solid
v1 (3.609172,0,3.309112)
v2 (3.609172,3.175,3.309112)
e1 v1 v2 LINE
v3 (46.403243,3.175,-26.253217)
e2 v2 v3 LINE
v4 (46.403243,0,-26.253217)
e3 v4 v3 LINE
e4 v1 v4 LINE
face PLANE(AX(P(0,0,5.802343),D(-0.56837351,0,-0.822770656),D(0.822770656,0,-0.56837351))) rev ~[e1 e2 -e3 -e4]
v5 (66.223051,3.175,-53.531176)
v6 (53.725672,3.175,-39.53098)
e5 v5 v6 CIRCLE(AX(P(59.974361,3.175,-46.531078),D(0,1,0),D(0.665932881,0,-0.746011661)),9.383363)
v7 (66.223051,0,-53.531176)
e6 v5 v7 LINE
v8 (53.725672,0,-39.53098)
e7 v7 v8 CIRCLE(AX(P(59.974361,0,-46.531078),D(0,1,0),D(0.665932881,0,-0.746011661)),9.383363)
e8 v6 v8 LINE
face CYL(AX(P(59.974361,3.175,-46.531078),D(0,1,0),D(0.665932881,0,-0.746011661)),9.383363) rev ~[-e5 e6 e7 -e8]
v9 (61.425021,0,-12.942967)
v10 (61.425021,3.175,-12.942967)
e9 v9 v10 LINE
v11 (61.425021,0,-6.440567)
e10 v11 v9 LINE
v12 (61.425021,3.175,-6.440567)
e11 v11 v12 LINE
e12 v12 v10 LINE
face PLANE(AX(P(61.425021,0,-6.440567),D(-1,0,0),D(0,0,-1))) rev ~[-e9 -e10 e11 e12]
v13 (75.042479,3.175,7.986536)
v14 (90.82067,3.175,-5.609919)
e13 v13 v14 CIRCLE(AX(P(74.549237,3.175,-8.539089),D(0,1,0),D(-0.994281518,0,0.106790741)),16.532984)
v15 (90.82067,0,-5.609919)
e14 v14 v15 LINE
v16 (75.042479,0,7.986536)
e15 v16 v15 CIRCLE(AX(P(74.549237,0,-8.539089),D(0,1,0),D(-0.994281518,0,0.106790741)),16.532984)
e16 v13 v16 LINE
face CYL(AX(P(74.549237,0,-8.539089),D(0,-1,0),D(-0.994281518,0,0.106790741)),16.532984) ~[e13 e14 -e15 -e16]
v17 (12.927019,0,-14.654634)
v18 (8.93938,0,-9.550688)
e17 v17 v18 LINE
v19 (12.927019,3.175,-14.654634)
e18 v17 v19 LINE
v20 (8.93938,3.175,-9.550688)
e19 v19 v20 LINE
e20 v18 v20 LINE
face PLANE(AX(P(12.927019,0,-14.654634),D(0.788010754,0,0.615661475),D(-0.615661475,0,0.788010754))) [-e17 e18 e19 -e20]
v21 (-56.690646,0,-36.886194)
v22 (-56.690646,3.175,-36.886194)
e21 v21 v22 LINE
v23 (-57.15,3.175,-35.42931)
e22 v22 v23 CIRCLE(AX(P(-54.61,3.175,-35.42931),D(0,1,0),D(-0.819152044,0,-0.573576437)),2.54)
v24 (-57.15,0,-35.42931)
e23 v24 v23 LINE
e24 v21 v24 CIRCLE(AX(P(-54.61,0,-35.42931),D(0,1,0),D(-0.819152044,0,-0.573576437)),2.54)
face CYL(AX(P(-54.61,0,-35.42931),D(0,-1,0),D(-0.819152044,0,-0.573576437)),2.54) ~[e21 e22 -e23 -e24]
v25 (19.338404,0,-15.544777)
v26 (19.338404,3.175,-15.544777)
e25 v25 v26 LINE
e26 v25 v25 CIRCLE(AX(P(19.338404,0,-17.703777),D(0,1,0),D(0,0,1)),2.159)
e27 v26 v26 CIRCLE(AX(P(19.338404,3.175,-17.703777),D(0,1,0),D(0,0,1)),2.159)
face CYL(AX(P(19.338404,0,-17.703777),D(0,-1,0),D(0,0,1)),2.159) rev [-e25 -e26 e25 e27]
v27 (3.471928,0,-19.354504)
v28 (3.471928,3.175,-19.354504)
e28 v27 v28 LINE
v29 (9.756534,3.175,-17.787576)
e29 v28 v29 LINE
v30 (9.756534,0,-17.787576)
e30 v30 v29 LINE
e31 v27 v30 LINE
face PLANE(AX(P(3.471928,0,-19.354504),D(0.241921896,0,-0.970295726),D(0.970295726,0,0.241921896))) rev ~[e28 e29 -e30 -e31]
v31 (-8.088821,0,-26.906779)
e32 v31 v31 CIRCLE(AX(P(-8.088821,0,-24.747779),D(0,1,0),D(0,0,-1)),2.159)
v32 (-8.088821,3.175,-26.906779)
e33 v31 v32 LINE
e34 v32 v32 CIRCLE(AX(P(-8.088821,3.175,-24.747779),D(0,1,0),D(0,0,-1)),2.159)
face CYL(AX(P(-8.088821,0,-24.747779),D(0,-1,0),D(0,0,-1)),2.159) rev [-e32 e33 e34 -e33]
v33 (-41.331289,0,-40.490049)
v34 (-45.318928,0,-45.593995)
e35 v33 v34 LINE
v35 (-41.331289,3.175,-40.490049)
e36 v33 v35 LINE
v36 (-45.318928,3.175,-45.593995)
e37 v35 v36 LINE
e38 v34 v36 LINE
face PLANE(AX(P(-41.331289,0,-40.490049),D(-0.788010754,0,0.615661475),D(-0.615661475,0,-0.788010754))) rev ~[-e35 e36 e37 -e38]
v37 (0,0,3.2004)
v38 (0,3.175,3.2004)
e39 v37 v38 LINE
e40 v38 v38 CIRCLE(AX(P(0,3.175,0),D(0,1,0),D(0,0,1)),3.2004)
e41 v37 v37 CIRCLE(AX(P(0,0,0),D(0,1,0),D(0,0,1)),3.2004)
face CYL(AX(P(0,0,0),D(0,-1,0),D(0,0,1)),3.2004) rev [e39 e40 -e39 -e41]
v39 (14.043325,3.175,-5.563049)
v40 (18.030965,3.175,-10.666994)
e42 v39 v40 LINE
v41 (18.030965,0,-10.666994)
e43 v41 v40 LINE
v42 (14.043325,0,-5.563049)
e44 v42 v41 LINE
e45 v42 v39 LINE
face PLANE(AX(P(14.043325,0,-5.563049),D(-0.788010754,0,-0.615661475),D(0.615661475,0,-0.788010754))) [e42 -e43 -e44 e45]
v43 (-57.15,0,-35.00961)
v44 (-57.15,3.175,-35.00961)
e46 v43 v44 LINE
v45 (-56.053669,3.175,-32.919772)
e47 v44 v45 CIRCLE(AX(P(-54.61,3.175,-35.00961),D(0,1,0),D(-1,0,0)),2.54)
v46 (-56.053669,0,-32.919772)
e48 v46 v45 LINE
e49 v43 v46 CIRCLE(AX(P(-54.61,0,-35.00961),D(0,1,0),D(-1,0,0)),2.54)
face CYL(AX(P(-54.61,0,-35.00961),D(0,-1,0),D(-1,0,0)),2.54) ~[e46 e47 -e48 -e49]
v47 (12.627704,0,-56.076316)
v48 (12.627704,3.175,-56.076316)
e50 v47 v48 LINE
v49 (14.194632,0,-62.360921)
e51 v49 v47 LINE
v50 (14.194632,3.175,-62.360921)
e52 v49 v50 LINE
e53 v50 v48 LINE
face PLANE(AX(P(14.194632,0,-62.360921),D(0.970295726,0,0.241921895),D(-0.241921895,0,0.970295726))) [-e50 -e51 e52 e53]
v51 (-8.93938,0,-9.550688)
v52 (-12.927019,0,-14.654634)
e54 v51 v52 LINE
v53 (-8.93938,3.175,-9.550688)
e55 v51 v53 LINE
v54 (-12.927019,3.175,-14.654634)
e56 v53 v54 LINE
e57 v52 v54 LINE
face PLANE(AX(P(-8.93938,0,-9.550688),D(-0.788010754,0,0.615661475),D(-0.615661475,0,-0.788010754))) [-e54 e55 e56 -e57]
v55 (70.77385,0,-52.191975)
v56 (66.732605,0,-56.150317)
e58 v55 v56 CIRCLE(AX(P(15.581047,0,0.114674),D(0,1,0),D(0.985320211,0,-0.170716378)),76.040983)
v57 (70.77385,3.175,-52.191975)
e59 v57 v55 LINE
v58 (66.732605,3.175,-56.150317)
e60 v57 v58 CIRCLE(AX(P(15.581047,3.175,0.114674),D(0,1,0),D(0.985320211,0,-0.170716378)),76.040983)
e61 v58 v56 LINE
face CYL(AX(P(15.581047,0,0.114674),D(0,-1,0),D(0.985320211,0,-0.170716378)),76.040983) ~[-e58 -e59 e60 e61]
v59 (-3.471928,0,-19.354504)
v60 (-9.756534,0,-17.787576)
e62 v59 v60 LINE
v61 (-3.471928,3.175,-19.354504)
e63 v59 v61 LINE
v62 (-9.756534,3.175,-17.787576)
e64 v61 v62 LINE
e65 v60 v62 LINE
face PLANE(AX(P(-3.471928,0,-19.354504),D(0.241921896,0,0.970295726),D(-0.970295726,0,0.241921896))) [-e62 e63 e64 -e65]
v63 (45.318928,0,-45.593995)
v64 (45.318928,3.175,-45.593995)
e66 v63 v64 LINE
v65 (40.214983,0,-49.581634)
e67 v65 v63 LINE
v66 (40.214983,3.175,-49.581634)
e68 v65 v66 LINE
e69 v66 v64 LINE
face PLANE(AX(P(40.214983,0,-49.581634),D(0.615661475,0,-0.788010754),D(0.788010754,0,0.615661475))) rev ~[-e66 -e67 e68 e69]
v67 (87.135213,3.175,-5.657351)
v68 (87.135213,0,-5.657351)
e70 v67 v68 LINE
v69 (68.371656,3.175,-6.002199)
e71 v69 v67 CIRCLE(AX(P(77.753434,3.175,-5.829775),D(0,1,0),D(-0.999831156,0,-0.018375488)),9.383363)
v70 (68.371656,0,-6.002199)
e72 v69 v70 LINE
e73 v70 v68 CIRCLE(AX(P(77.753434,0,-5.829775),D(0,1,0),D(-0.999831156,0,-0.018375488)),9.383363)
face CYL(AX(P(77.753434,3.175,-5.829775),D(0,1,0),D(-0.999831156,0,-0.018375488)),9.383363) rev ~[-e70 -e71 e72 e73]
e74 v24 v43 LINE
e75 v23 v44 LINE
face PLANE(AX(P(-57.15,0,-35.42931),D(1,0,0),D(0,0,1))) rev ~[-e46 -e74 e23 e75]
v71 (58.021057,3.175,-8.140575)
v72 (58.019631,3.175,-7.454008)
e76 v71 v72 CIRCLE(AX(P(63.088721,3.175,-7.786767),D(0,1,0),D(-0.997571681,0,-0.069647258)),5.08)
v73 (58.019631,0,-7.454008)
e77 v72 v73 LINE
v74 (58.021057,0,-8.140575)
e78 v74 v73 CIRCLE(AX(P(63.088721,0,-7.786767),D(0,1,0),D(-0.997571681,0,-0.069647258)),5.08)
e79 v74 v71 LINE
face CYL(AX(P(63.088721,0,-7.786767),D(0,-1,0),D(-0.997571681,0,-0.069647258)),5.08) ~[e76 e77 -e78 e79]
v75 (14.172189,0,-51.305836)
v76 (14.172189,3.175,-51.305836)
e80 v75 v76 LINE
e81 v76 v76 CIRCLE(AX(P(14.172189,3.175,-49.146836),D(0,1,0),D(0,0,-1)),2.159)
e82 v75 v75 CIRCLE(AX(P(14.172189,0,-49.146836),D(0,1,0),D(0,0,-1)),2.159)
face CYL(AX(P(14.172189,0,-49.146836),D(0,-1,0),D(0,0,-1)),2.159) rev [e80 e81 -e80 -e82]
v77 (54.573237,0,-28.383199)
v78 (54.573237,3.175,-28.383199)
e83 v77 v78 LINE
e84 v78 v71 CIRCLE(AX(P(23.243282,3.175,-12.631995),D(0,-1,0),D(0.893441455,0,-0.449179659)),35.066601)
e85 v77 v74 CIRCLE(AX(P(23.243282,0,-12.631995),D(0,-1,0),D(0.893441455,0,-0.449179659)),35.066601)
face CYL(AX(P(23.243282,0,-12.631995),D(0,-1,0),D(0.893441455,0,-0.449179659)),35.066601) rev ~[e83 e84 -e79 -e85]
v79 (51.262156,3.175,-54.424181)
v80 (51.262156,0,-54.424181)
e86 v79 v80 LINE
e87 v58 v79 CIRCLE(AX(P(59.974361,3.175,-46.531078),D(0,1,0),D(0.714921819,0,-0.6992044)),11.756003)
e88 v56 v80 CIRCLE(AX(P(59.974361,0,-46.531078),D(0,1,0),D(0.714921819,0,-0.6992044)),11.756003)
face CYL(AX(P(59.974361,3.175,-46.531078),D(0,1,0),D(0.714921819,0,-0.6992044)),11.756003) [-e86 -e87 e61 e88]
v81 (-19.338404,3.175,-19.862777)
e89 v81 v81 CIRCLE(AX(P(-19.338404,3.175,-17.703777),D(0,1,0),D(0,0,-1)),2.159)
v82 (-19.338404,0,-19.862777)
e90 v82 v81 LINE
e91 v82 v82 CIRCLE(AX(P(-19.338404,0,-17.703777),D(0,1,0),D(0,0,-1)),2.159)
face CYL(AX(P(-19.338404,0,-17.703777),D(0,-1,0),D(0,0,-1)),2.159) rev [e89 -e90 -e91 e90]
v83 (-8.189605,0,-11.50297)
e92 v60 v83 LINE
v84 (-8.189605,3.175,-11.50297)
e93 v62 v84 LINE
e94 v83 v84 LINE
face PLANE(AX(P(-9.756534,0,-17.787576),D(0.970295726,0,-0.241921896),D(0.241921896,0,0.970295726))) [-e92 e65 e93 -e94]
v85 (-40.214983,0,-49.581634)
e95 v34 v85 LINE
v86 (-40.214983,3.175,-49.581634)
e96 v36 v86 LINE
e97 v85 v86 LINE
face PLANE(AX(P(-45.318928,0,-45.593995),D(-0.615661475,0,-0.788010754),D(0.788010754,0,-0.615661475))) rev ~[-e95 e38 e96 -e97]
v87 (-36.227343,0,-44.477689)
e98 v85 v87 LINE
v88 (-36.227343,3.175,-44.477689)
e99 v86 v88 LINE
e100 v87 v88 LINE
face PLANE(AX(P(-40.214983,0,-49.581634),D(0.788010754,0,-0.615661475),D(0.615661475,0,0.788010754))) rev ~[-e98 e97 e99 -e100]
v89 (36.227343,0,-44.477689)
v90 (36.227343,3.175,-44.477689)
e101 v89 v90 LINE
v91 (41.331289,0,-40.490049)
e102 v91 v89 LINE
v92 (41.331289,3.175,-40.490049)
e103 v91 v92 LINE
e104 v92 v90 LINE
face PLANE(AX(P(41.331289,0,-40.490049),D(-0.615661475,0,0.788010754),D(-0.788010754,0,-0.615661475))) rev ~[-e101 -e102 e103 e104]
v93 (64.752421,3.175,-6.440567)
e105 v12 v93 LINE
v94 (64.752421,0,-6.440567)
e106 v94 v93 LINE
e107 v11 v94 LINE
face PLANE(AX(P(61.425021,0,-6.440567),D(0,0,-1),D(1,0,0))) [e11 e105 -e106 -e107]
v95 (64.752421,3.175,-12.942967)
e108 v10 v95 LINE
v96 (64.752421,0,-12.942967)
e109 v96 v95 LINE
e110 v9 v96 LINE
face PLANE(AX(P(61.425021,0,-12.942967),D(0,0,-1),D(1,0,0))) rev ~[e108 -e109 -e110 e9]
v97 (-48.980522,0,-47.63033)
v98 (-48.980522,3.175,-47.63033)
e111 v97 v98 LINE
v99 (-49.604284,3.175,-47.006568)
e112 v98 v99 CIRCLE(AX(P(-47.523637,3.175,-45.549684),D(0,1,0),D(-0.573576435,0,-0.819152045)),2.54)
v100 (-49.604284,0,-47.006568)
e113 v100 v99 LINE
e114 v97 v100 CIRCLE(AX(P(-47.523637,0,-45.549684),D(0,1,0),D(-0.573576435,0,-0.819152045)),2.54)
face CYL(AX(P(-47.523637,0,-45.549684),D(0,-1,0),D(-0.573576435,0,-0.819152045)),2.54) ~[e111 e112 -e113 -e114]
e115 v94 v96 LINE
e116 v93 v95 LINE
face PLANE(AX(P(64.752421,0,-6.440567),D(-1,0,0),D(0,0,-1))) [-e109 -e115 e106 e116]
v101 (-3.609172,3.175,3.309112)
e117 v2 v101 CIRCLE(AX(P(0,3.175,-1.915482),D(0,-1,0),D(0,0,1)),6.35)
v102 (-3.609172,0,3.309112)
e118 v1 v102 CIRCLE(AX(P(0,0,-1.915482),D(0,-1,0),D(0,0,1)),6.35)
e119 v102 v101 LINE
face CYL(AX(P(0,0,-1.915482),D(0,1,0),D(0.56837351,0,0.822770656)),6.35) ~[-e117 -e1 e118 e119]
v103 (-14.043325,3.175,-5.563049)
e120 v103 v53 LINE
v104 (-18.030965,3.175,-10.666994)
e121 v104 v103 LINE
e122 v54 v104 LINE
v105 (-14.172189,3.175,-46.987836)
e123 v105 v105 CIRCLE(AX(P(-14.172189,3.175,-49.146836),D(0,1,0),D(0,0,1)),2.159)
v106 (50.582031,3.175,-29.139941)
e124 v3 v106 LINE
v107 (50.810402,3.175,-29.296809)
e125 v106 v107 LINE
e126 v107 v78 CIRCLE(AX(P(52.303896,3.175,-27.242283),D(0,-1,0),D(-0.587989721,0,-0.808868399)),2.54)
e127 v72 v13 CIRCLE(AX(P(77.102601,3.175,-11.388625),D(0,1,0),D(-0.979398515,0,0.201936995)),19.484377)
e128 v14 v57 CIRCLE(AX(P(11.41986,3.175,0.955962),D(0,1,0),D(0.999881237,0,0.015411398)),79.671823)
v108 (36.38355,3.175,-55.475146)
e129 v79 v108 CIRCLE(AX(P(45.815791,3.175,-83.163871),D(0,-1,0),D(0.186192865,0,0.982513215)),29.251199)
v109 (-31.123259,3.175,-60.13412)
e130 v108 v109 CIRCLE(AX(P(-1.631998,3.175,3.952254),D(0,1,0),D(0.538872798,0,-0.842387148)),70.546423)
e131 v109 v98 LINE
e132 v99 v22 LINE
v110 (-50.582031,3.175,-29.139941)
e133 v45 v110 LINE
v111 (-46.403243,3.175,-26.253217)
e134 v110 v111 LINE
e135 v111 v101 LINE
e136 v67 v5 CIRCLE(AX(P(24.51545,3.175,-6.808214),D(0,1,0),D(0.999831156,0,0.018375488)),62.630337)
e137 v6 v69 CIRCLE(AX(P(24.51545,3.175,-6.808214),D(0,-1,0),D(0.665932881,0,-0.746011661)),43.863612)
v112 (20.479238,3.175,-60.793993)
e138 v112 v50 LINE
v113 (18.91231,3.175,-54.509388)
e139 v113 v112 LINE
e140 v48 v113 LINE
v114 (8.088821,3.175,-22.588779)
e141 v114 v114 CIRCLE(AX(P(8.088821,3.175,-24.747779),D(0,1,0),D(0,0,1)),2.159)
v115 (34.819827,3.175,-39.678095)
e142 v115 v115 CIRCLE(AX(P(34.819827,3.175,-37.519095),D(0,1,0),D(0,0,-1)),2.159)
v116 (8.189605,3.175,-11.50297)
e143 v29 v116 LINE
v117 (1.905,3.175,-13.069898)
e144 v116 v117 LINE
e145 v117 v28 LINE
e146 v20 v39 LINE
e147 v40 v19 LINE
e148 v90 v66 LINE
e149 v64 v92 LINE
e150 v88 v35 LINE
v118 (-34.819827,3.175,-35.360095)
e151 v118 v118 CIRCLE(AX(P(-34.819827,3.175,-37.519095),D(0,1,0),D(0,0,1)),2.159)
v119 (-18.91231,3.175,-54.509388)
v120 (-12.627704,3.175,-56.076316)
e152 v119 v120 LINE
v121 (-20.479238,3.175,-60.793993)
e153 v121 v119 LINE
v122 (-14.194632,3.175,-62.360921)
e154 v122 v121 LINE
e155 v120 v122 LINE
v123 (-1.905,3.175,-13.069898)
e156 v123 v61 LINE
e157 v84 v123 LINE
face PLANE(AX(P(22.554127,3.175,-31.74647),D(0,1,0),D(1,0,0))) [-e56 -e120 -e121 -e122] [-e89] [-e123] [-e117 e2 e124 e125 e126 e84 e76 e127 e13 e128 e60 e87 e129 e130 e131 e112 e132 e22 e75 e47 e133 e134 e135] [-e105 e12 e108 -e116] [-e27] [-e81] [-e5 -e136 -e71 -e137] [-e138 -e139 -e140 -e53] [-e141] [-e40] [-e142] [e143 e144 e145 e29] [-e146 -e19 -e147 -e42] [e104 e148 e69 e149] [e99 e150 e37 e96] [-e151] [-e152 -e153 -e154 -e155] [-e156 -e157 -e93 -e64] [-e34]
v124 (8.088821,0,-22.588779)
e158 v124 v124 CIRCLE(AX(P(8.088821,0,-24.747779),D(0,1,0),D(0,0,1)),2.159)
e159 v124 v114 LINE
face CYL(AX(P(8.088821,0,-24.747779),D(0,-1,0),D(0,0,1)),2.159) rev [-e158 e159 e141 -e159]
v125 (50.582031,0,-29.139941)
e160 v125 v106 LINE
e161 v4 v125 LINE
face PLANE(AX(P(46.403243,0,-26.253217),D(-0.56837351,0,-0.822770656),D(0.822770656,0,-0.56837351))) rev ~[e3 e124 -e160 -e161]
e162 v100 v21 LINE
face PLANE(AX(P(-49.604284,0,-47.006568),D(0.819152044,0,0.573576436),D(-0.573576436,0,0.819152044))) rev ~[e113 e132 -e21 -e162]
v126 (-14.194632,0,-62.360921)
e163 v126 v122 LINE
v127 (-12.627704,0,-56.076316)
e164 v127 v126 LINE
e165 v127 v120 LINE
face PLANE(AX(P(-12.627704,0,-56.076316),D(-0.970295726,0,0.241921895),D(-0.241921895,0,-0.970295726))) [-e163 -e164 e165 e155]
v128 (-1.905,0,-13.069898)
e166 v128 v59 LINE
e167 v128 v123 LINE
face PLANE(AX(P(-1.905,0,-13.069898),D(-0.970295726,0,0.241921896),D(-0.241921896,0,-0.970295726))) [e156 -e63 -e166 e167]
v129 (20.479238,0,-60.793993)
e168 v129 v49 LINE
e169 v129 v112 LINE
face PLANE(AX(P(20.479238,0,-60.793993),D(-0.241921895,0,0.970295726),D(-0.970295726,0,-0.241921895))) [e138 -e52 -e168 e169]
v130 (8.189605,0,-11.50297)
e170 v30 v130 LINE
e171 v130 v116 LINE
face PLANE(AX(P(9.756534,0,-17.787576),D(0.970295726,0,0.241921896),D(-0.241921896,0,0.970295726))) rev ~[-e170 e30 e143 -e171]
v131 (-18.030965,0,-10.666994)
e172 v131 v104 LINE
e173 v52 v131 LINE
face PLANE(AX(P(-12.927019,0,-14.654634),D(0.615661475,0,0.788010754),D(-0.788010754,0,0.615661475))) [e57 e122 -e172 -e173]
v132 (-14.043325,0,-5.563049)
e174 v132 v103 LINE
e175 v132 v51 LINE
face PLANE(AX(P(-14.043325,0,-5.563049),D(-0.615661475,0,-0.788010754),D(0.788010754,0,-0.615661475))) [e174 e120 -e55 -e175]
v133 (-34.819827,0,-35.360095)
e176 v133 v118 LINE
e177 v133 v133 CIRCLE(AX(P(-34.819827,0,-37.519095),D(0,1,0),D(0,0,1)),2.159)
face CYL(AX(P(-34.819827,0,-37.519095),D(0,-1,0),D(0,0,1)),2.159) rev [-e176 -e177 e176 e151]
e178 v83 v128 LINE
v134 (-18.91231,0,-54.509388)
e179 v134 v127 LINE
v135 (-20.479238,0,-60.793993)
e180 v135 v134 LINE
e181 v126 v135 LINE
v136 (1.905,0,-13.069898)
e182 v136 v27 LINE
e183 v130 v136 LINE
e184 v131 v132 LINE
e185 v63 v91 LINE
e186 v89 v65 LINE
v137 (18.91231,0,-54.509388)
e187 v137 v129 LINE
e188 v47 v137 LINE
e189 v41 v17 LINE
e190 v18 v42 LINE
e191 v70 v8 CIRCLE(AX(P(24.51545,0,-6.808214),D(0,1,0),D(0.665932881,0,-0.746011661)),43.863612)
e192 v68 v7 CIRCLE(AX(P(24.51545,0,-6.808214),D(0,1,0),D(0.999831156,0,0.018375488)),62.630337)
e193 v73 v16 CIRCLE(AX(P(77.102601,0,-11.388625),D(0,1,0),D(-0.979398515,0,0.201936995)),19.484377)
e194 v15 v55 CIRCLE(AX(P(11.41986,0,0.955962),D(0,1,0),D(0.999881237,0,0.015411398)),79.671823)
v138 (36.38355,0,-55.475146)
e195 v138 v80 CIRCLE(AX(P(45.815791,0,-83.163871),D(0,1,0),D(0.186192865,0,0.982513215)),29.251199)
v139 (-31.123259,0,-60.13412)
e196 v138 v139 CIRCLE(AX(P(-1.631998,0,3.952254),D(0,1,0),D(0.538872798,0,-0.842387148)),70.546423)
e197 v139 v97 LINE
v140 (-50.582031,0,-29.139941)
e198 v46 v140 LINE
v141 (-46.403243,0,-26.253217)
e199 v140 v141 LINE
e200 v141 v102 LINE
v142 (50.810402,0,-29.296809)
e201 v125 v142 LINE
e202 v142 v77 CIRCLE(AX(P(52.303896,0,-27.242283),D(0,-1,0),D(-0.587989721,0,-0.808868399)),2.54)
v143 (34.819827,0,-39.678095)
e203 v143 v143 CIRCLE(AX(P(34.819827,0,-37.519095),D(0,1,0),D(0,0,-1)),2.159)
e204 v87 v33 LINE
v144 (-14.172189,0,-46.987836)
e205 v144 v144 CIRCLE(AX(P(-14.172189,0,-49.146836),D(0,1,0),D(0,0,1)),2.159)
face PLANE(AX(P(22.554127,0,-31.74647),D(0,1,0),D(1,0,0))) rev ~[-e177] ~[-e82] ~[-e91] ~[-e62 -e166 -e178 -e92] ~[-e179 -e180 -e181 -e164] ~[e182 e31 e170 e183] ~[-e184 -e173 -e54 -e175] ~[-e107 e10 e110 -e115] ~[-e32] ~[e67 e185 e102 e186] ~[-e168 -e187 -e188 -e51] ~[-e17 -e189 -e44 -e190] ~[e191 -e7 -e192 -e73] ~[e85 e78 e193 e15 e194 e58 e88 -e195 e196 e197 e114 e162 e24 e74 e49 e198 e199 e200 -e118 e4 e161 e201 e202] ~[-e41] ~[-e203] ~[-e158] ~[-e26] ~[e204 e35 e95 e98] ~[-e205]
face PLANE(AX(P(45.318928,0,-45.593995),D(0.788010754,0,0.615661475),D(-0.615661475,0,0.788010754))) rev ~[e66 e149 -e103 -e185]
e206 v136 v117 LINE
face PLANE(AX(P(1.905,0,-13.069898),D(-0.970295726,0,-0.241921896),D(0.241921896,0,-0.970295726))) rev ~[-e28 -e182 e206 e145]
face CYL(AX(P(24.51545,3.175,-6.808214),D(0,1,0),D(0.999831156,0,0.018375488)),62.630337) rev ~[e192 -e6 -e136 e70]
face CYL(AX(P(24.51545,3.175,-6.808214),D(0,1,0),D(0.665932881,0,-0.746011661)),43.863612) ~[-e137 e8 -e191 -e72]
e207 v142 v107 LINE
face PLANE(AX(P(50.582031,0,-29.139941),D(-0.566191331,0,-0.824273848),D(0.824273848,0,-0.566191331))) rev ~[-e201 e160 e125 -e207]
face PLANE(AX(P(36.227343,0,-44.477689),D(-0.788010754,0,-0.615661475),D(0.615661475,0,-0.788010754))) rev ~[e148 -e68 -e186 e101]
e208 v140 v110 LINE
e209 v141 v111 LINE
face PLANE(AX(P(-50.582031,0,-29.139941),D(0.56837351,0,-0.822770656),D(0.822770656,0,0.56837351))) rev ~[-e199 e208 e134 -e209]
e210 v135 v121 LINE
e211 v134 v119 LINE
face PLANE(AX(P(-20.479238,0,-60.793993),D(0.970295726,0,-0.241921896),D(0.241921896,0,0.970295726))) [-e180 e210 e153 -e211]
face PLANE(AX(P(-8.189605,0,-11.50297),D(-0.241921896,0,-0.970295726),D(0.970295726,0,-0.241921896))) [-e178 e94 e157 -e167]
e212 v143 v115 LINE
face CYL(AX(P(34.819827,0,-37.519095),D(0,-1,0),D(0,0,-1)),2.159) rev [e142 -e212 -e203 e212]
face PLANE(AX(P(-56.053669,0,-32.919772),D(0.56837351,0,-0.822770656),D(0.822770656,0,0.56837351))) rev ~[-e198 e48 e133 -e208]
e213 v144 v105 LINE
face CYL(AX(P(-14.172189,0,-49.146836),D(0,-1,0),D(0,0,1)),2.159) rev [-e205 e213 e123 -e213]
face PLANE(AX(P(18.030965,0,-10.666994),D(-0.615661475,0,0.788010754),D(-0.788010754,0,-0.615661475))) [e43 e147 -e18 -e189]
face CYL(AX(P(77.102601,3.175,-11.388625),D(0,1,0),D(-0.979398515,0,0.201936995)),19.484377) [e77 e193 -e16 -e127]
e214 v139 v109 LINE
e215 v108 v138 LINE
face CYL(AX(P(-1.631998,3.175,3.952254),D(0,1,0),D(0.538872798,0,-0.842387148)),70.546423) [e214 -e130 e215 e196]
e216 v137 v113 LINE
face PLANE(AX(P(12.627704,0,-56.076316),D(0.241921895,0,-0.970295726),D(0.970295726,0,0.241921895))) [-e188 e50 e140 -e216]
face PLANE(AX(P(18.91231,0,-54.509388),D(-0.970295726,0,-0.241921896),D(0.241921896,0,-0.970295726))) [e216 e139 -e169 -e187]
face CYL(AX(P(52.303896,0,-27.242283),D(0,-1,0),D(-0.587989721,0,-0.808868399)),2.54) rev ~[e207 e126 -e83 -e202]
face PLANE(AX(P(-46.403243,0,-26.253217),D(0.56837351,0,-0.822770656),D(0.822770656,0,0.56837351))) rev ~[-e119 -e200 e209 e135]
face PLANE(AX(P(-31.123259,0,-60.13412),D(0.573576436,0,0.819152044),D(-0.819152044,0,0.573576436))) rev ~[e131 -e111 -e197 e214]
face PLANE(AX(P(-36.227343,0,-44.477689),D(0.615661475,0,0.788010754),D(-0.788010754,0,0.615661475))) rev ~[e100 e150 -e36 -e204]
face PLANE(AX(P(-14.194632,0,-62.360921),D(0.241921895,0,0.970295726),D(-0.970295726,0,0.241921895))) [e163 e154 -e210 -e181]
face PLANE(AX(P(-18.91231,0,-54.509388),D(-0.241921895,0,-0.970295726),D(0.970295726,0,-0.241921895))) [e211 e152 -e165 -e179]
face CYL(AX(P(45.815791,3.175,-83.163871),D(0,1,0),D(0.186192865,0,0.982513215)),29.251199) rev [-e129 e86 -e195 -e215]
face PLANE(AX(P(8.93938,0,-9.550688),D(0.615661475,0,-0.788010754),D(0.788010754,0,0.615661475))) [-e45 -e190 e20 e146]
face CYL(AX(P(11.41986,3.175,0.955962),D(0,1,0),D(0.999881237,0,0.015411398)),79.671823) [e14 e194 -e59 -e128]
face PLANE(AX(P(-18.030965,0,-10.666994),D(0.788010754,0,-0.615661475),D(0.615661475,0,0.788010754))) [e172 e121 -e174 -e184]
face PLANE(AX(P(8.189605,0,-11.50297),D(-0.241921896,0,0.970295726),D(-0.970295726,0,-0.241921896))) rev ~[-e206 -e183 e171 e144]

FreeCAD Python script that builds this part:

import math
import FreeCAD as App
import Part
import Sketcher
Q = App.Units.Quantity


def edges_at(feature, points):
    """Names of the edges that pass closest to the given points."""
    edges = feature.Shape.Edges
    near = lambda p: min(range(len(edges)), key=lambda i: edges[i].distToShape(Part.Vertex(*p))[0])
    return sorted({f"Edge{near(p) + 1}" for p in points})

doc = App.newDocument("Part")
body = doc.addObject("PartDesign::Body", "Body")

# Sketch on XZ plane
sketch1 = body.newObject("Sketcher::SketchObject", "Sketch")
sketch1.AttachmentSupport = (doc.getObject("XZ_Plane"), [""])
sketch1.MapMode = "FlatFace"
sketch1.addGeometry([
    Part.LineSegment(App.Vector(46.4, -26.25, 0), App.Vector(50.58, -29.14, 0)),  # 0
    Part.LineSegment(App.Vector(50.58, -29.14, 0), App.Vector(50.81, -29.3, 0)),  # 1
    Part.ArcOfCircle(Part.Circle(App.Vector(52.3, -27.24, 0), App.Vector(0, 0, 1), 2.54), math.radians(-126), math.radians(-27)),  # 2
    Part.ArcOfCircle(Part.Circle(App.Vector(23.24, -12.63, 0), App.Vector(0, 0, 1), 35.07), math.radians(-27), math.radians(7)),  # 3
    Part.ArcOfCircle(Part.Circle(App.Vector(63.09, -7.79, 0), App.Vector(0, 0, 1), 5.08), math.radians(168.49), math.radians(183.99)),  # 4
    Part.ArcOfCircle(Part.Circle(App.Vector(74.55, -8.54, 0), App.Vector(0, 0, 1), 16.53), math.radians(-15), math.radians(174)),  # 5
    Part.ArcOfCircle(Part.Circle(App.Vector(15.58, 0.11, 0), App.Vector(0, 0, 1), 76.04), math.radians(-127), math.radians(-10)),  # 6
    Part.ArcOfCircle(Part.Circle(App.Vector(-29.67, -58.05, 0), App.Vector(0, 0, 1), 2.54), math.radians(-125), math.radians(-105)),  # 7
    Part.LineSegment(App.Vector(-31.12, -60.13, 0), App.Vector(-48.98, -47.63, 0)),  # 8
    Part.ArcOfCircle(Part.Circle(App.Vector(-47.52, -45.55, 0), App.Vector(0, 0, 1), 2.54), math.radians(-145), math.radians(-125)),  # 9
    Part.LineSegment(App.Vector(-49.6, -47.01, 0), App.Vector(-56.69, -36.89, 0)),  # 10
    Part.ArcOfCircle(Part.Circle(App.Vector(-54.61, -35.43, 0), App.Vector(0, 0, 1), 2.54), math.radians(180), math.radians(215)),  # 11
    Part.LineSegment(App.Vector(-57.15, -35.43, 0), App.Vector(-57.15, -35.01, 0)),  # 12
    Part.ArcOfCircle(Part.Circle(App.Vector(-54.61, -35.01, 0), App.Vector(0, 0, 1), 2.54), math.radians(125), math.radians(180)),  # 13
    Part.LineSegment(App.Vector(-56.05, -32.92, 0), App.Vector(-50.58, -29.14, 0)),  # 14
    Part.LineSegment(App.Vector(-50.58, -29.14, 0), App.Vector(-46.4, -26.25, 0)),  # 15
    Part.LineSegment(App.Vector(-46.4, -26.25, 0), App.Vector(0, 5.8, 0)),  # 16
    Part.LineSegment(App.Vector(0, 5.8, 0), App.Vector(46.4, -26.25, 0)),  # 17
    Part.Circle(App.Vector(0, 0, 0), App.Vector(0, 0, 1), 3.2),  # 18
    Part.LineSegment(App.Vector(-18.03, -10.67, 0), App.Vector(-12.93, -14.65, 0)),  # 19
    Part.LineSegment(App.Vector(-12.93, -14.65, 0), App.Vector(-8.94, -9.55, 0)),  # 20
    Part.LineSegment(App.Vector(-8.94, -9.55, 0), App.Vector(-14.04, -5.56, 0)),  # 21
    Part.LineSegment(App.Vector(-14.04, -5.56, 0), App.Vector(-18.03, -10.67, 0)),  # 22
    Part.Circle(App.Vector(-19.34, -17.7, 0), App.Vector(0, 0, 1), 2.16),  # 23
    Part.LineSegment(App.Vector(-9.76, -17.79, 0), App.Vector(-3.47, -19.35, 0)),  # 24
    Part.LineSegment(App.Vector(-3.47, -19.35, 0), App.Vector(-1.91, -13.07, 0)),  # 25
    Part.LineSegment(App.Vector(-1.91, -13.07, 0), App.Vector(-8.19, -11.5, 0)),  # 26
    Part.LineSegment(App.Vector(-8.19, -11.5, 0), App.Vector(-9.76, -17.79, 0)),  # 27
    Part.LineSegment(App.Vector(3.47, -19.35, 0), App.Vector(9.76, -17.79, 0)),  # 28
    Part.LineSegment(App.Vector(9.76, -17.79, 0), App.Vector(8.19, -11.5, 0)),  # 29
    Part.LineSegment(App.Vector(8.19, -11.5, 0), App.Vector(1.91, -13.07, 0)),  # 30
    Part.LineSegment(App.Vector(1.91, -13.07, 0), App.Vector(3.47, -19.35, 0)),  # 31
    Part.Circle(App.Vector(-8.09, -24.75, 0), App.Vector(0, 0, 1), 2.16),  # 32
    Part.Circle(App.Vector(8.09, -24.75, 0), App.Vector(0, 0, 1), 2.16),  # 33
    Part.LineSegment(App.Vector(14.04, -5.56, 0), App.Vector(8.94, -9.55, 0)),  # 34
    Part.LineSegment(App.Vector(8.94, -9.55, 0), App.Vector(12.93, -14.65, 0)),  # 35
    Part.LineSegment(App.Vector(12.93, -14.65, 0), App.Vector(18.03, -10.67, 0)),  # 36
    Part.LineSegment(App.Vector(18.03, -10.67, 0), App.Vector(14.04, -5.56, 0)),  # 37
    Part.LineSegment(App.Vector(64.75, -6.44, 0), App.Vector(61.43, -6.44, 0)),  # 38
    Part.LineSegment(App.Vector(61.43, -6.44, 0), App.Vector(61.43, -12.94, 0)),  # 39
    Part.LineSegment(App.Vector(61.43, -12.94, 0), App.Vector(64.75, -12.94, 0)),  # 40
    Part.LineSegment(App.Vector(64.75, -12.94, 0), App.Vector(64.75, -6.44, 0)),  # 41
    Part.Circle(App.Vector(19.34, -17.7, 0), App.Vector(0, 0, 1), 2.16),  # 42
    Part.Circle(App.Vector(-34.82, -37.52, 0), App.Vector(0, 0, 1), 2.16),  # 43
    Part.LineSegment(App.Vector(-40.21, -49.58, 0), App.Vector(-36.23, -44.48, 0)),  # 44
    Part.LineSegment(App.Vector(-36.23, -44.48, 0), App.Vector(-41.33, -40.49, 0)),  # 45
    Part.LineSegment(App.Vector(-41.33, -40.49, 0), App.Vector(-45.32, -45.59, 0)),  # 46
    Part.LineSegment(App.Vector(-45.32, -45.59, 0), App.Vector(-40.21, -49.58, 0)),  # 47
    Part.Circle(App.Vector(-14.17, -49.15, 0), App.Vector(0, 0, 1), 2.16),  # 48
    Part.LineSegment(App.Vector(-20.48, -60.79, 0), App.Vector(-14.19, -62.36, 0)),  # 49
    Part.LineSegment(App.Vector(-14.19, -62.36, 0), App.Vector(-12.63, -56.08, 0)),  # 50
    Part.LineSegment(App.Vector(-12.63, -56.08, 0), App.Vector(-18.91, -54.51, 0)),  # 51
    Part.LineSegment(App.Vector(-18.91, -54.51, 0), App.Vector(-20.48, -60.79, 0)),  # 52
    Part.Circle(App.Vector(34.82, -37.52, 0), App.Vector(0, 0, 1), 2.16),  # 53
    Part.LineSegment(App.Vector(36.23, -44.48, 0), App.Vector(40.21, -49.58, 0)),  # 54
    Part.LineSegment(App.Vector(40.21, -49.58, 0), App.Vector(45.32, -45.59, 0)),  # 55
    Part.LineSegment(App.Vector(45.32, -45.59, 0), App.Vector(41.33, -40.49, 0)),  # 56
    Part.LineSegment(App.Vector(41.33, -40.49, 0), App.Vector(36.23, -44.48, 0)),  # 57
    Part.Circle(App.Vector(14.17, -49.15, 0), App.Vector(0, 0, 1), 2.16),  # 58
    Part.LineSegment(App.Vector(12.63, -56.08, 0), App.Vector(14.19, -62.36, 0)),  # 59
    Part.LineSegment(App.Vector(14.19, -62.36, 0), App.Vector(20.48, -60.79, 0)),  # 60
    Part.LineSegment(App.Vector(20.48, -60.79, 0), App.Vector(18.91, -54.51, 0)),  # 61
    Part.LineSegment(App.Vector(18.91, -54.51, 0), App.Vector(12.63, -56.08, 0)),  # 62
], False)
sketch1.addConstraint([
    Sketcher.Constraint("Coincident", 0, 2, 1, 1),
    Sketcher.Constraint("Coincident", 1, 2, 2, 1),
    Sketcher.Constraint("Tangent", 2, 2, 3, 1),
    Sketcher.Constraint("Coincident", 3, 2, 4, 2),
    Sketcher.Constraint("Coincident", 4, 1, 5, 2),
    Sketcher.Constraint("Coincident", 5, 1, 6, 2),
    Sketcher.Constraint("Coincident", 6, 1, 7, 2),
    Sketcher.Constraint("Tangent", 7, 1, 8, 1),
    Sketcher.Constraint("Tangent", 8, 2, 9, 2),
    Sketcher.Constraint("Tangent", 9, 1, 10, 1),
    Sketcher.Constraint("Tangent", 10, 2, 11, 2),
    Sketcher.Constraint("Tangent", 11, 1, 12, 1),
    Sketcher.Constraint("Tangent", 12, 2, 13, 2),
    Sketcher.Constraint("Tangent", 13, 1, 14, 1),
    Sketcher.Constraint("Coincident", 14, 2, 15, 1),
    Sketcher.Constraint("Coincident", 15, 2, 16, 1),
    Sketcher.Constraint("Coincident", 16, 2, 17, 1),
    Sketcher.Constraint("Coincident", 17, 2, 0, 1),
    Sketcher.Constraint("Coincident", 19, 2, 20, 1),
    Sketcher.Constraint("Coincident", 20, 2, 21, 1),
    Sketcher.Constraint("Coincident", 21, 2, 22, 1),
    Sketcher.Constraint("Coincident", 22, 2, 19, 1),
    Sketcher.Constraint("Coincident", 24, 2, 25, 1),
    Sketcher.Constraint("Coincident", 25, 2, 26, 1),
    Sketcher.Constraint("Coincident", 26, 2, 27, 1),
    Sketcher.Constraint("Coincident", 27, 2, 24, 1),
    Sketcher.Constraint("Coincident", 28, 2, 29, 1),
    Sketcher.Constraint("Coincident", 29, 2, 30, 1),
    Sketcher.Constraint("Coincident", 30, 2, 31, 1),
    Sketcher.Constraint("Coincident", 31, 2, 28, 1),
    Sketcher.Constraint("Coincident", 34, 2, 35, 1),
    Sketcher.Constraint("Coincident", 35, 2, 36, 1),
    Sketcher.Constraint("Coincident", 36, 2, 37, 1),
    Sketcher.Constraint("Coincident", 37, 2, 34, 1),
    Sketcher.Constraint("Coincident", 38, 2, 39, 1),
    Sketcher.Constraint("Coincident", 39, 2, 40, 1),
    Sketcher.Constraint("Coincident", 40, 2, 41, 1),
    Sketcher.Constraint("Coincident", 41, 2, 38, 1),
    Sketcher.Constraint("Coincident", 44, 2, 45, 1),
    Sketcher.Constraint("Coincident", 45, 2, 46, 1),
    Sketcher.Constraint("Coincident", 46, 2, 47, 1),
    Sketcher.Constraint("Coincident", 47, 2, 44, 1),
    Sketcher.Constraint("Coincident", 49, 2, 50, 1),
    Sketcher.Constraint("Coincident", 50, 2, 51, 1),
    Sketcher.Constraint("Coincident", 51, 2, 52, 1),
    Sketcher.Constraint("Coincident", 52, 2, 49, 1),
    Sketcher.Constraint("Coincident", 54, 2, 55, 1),
    Sketcher.Constraint("Coincident", 55, 2, 56, 1),
    Sketcher.Constraint("Coincident", 56, 2, 57, 1),
    Sketcher.Constraint("Coincident", 57, 2, 54, 1),
    Sketcher.Constraint("Coincident", 59, 2, 60, 1),
    Sketcher.Constraint("Coincident", 60, 2, 61, 1),
    Sketcher.Constraint("Coincident", 61, 2, 62, 1),
    Sketcher.Constraint("Coincident", 62, 2, 59, 1),
    Sketcher.Constraint("Vertical", 12),
    Sketcher.Constraint("Horizontal", 38),
    Sketcher.Constraint("Vertical", 39),
    Sketcher.Constraint("Horizontal", 40),
    Sketcher.Constraint("Vertical", 41),
    Sketcher.Constraint("Coincident", 18, 3, -1, 1),
    Sketcher.Constraint("Equal", 2, 7),
    Sketcher.Constraint("Equal", 7, 9),
    Sketcher.Constraint("Equal", 9, 11),
    Sketcher.Constraint("Equal", 11, 13),
    Sketcher.Constraint("Equal", 23, 32),
    Sketcher.Constraint("Equal", 32, 33),
    Sketcher.Constraint("Equal", 33, 42),
    Sketcher.Constraint("Equal", 42, 43),
    Sketcher.Constraint("Equal", 43, 48),
    Sketcher.Constraint("Equal", 48, 53),
    Sketcher.Constraint("Equal", 53, 58),
    Sketcher.Constraint("Symmetric", 32, 3, 33, 3, -2),
    Sketcher.Constraint("Symmetric", 23, 3, 42, 3, -2),
    Sketcher.Constraint("Symmetric", 43, 3, 53, 3, -2),
    Sketcher.Constraint("Symmetric", 48, 3, 58, 3, -2),
    Sketcher.Constraint("Symmetric", 0, 2, 14, 2, -2),
    Sketcher.Constraint("Symmetric", 15, 2, 17, 2, -2),
    Sketcher.Constraint("Symmetric", 27, 2, 28, 2, -2),
    Sketcher.Constraint("Symmetric", 26, 2, 29, 2, -2),
    Sketcher.Constraint("Symmetric", 25, 2, 30, 2, -2),
    Sketcher.Constraint("Symmetric", 24, 2, 31, 2, -2),
    Sketcher.Constraint("Symmetric", 20, 2, 34, 2, -2),
    Sketcher.Constraint("Symmetric", 19, 2, 35, 2, -2),
    Sketcher.Constraint("Symmetric", 22, 2, 36, 2, -2),
    Sketcher.Constraint("Symmetric", 21, 2, 37, 2, -2),
    Sketcher.Constraint("Symmetric", 47, 2, 54, 2, -2),
    Sketcher.Constraint("Symmetric", 46, 2, 55, 2, -2),
    Sketcher.Constraint("Symmetric", 45, 2, 56, 2, -2),
    Sketcher.Constraint("Symmetric", 44, 2, 57, 2, -2),
    Sketcher.Constraint("Symmetric", 49, 2, 59, 2, -2),
    Sketcher.Constraint("Symmetric", 52, 2, 60, 2, -2),
    Sketcher.Constraint("Symmetric", 51, 2, 61, 2, -2),
    Sketcher.Constraint("Symmetric", 50, 2, 62, 2, -2),
    Sketcher.Constraint("PointOnObject", 16, 2, -2),
    Sketcher.Constraint("Parallel", 14, 15),
    Sketcher.Constraint("Parallel", 15, 16),
    Sketcher.Constraint("Perpendicular", 19, 20),
    Sketcher.Constraint("Perpendicular", 20, 21),
    Sketcher.Constraint("Perpendicular", 21, 22),
    Sketcher.Constraint("Perpendicular", 24, 25),
    Sketcher.Constraint("Perpendicular", 25, 26),
    Sketcher.Constraint("Perpendicular", 26, 27),
    Sketcher.Constraint("Parallel", 22, 44),
    Sketcher.Constraint("Perpendicular", 44, 45),
    Sketcher.Constraint("Perpendicular", 45, 46),
    Sketcher.Constraint("Perpendicular", 46, 47),
    Sketcher.Constraint("Perpendicular", 27, 49),
    Sketcher.Constraint("Perpendicular", 49, 50),
    Sketcher.Constraint("Perpendicular", 50, 51),
    Sketcher.Constraint("Perpendicular", 51, 52),
    Sketcher.Constraint("Equal", 19, 20),
    Sketcher.Constraint("Equal", 22, 24),
    Sketcher.Constraint("Equal", 24, 25),
    Sketcher.Constraint("Equal", 37, 44),
    Sketcher.Constraint("Equal", 44, 45),
    Sketcher.Constraint("Equal", 47, 49),
    Sketcher.Constraint("Equal", 49, 50),
    Sketcher.Constraint("Radius", 2, Q("0.1 in")),
    Sketcher.Constraint("Radius", 4, Q("0.2 in")),
    Sketcher.Constraint("Diameter", 23, Q("0.17 in")),
    Sketcher.Constraint("Diameter", 18, Q("0.252 in")),
    Sketcher.Constraint("Angle", 8, Q("145 deg")),
    Sketcher.Constraint("Angle", 10, Q("125 deg")),
    Sketcher.Constraint("Angle", 19, Q("-38 deg")),
    Sketcher.Constraint("Angle", 24, Q("-14 deg")),
    Sketcher.Constraint("DistanceX", 38, 2, 38, 1, Q("0.131 in")),
    Sketcher.Constraint("DistanceY", 39, 2, 39, 1, Q("0.256 in")),
    Sketcher.Constraint("DistanceX", 11, 3, -1, 1, Q("2.15 in")),
    Sketcher.Constraint("Radius", 3, Q("35.066601 mm")),
    Sketcher.Constraint("Distance", 19, Q("0.255 in")),
    Sketcher.Constraint("DistanceX", 25, 2, -1, 1, Q("0.075 in")),
    Sketcher.Constraint("DistanceY", 12, 1, 12, 2, Q("0.4197 mm")),
    Sketcher.Constraint("Radius", 5, Q("16.532984 mm")),
    Sketcher.Constraint("Radius", 6, Q("76.040983 mm")),
    Sketcher.Constraint("DistanceX", -1, 1, 1, 2, Q("50.810402 mm")),
    Sketcher.Constraint("DistanceY", 2, 2, -1, 1, Q("28.383199 mm")),
    Sketcher.Constraint("DistanceY", 25, 2, -1, 1, Q("13.069898 mm")),
    Sketcher.Constraint("Distance", 0, Q("5.078922 mm")),
    Sketcher.Constraint("Distance", 14, Q("6.650259 mm")),
    Sketcher.Constraint("DistanceX", -1, 1, 3, 3, Q("23.243282 mm")),
    Sketcher.Constraint("DistanceX", -1, 1, 4, 3, Q("63.088721 mm")),
    Sketcher.Constraint("DistanceY", 5, 3, -1, 1, Q("8.539089 mm")),
    Sketcher.Constraint("DistanceY", 11, 3, -1, 1, Q("35.42931 mm")),
    Sketcher.Constraint("DistanceX", 32, 3, -1, 1, Q("8.088821 mm")),
    Sketcher.Constraint("DistanceY", 32, 3, -1, 1, Q("24.747779 mm")),
    Sketcher.Constraint("DistanceX", 48, 3, -1, 1, Q("14.172189 mm")),
    Sketcher.Constraint("DistanceX", -1, 1, 0, 2, Q("50.582031 mm")),
    Sketcher.Constraint("DistanceY", 1, 2, -1, 1, Q("29.296809 mm")),
    Sketcher.Constraint("DistanceY", 4, 1, -1, 1, Q("6.773519 mm")),
    Sketcher.Constraint("DistanceX", 7, 1, -1, 1, Q("31.123259 mm")),
    Sketcher.Constraint("DistanceY", 7, 1, -1, 1, Q("60.13412 mm")),
    Sketcher.Constraint("DistanceX", 19, 2, -1, 1, Q("12.927019 mm")),
    Sketcher.Constraint("DistanceY", 21, 2, -1, 1, Q("5.563049 mm")),
    Sketcher.Constraint("DistanceX", -1, 1, 38, 2, Q("61.425021 mm")),
    Sketcher.Constraint("DistanceY", 44, 2, -1, 1, Q("44.477689 mm")),
    Sketcher.Constraint("DistanceX", 45, 2, -1, 1, Q("41.331289 mm")),
    Sketcher.Constraint("DistanceY", 49, 2, -1, 1, Q("62.360921 mm")),
    Sketcher.Constraint("DistanceX", 51, 2, -1, 1, Q("18.91231 mm")),
    Sketcher.Constraint("DistanceY", 4, 3, -1, 1, Q("7.786767 mm")),
    Sketcher.Constraint("DistanceX", -1, 1, 6, 3, Q("15.581047 mm")),
    Sketcher.Constraint("DistanceY", -1, 1, 6, 3, Q("0.114674 mm")),
    Sketcher.Constraint("DistanceX", 23, 3, -1, 1, Q("19.338404 mm")),
    Sketcher.Constraint("DistanceY", 23, 3, -1, 1, Q("17.703777 mm")),
    Sketcher.Constraint("DistanceX", 43, 3, -1, 1, Q("34.819827 mm")),
    Sketcher.Constraint("DistanceY", 43, 3, -1, 1, Q("37.519095 mm")),
    Sketcher.Constraint("DistanceY", 48, 3, -1, 1, Q("49.146836 mm")),
    Sketcher.Constraint("DistanceY", 38, 2, -1, 1, Q("6.440567 mm")),
])
pad1 = body.newObject("PartDesign::Pad", "Pad")
pad1.Profile = sketch1
pad1.Length = Q("0.125 in")
pad1.Reversed = True
doc.recompute()

fillet = body.newObject("PartDesign::Fillet", "Fillet")
fillet.Base = (pad1, edges_at(pad1, [(0, 1.587, 5.802)]))
fillet.Radius = Q("0.25 in")

# Sketch on XZ plane
sketch2 = body.newObject("Sketcher::SketchObject", "Sketch001")
sketch2.AttachmentSupport = (doc.getObject("XZ_Plane"), [""])
sketch2.MapMode = "FlatFace"
sketch2.AttachmentOffset = App.Placement(App.Vector(0, 0, -0.125 * 25.4), App.Rotation())
sketch2.addGeometry([
    Part.ArcOfCircle(Part.Circle(App.Vector(25, -7, 0), App.Vector(0, 0, 1), 63), math.radians(-48), math.radians(1)),
    Part.ArcOfCircle(Part.Circle(App.Vector(60, -47, 0), App.Vector(0, 0, 1), 9), math.radians(132), math.radians(312)),
    Part.ArcOfCircle(Part.Circle(App.Vector(25, -7, 0), App.Vector(0, 0, 1), 44), math.radians(-48), math.radians(1)),
    Part.ArcOfCircle(Part.Circle(App.Vector(78, -6, 0), App.Vector(0, 0, 1), 9), math.radians(1), math.radians(181)),
], False)
sketch2.addConstraint([
    Sketcher.Constraint("Tangent", 0, 1, 1, 2),
    Sketcher.Constraint("Tangent", 1, 1, 2, 1),
    Sketcher.Constraint("Tangent", 2, 2, 3, 2),
    Sketcher.Constraint("Tangent", 3, 1, 0, 2),
    Sketcher.Constraint("Coincident", 2, 3, 0, 3),
    Sketcher.Constraint("Radius", 2, Q("43.863612 mm")),
    Sketcher.Constraint("Radius", 0, Q("62.630337 mm")),
    Sketcher.Constraint("DistanceY", 2, 2, -1, 1, Q("6.002199 mm")),
    Sketcher.Constraint("DistanceY", 0, 1, 3, 3, Q("47.701401 mm")),
    Sketcher.Constraint("DistanceX", 0, 3, 0, 1, Q("41.707601 mm")),
    Sketcher.Constraint("DistanceX", -1, 1, 0, 3, Q("24.51545 mm")),
])
pocket1 = body.newObject("PartDesign::Pocket", "Pocket")
pocket1.Profile = sketch2
pocket1.Type = "ThroughAll"
pocket1.Reversed = True

# Sketch on XZ plane
sketch3 = body.newObject("Sketcher::SketchObject", "Sketch002")
sketch3.AttachmentSupport = (doc.getObject("XZ_Plane"), [""])
sketch3.MapMode = "FlatFace"
sketch3.AttachmentOffset = App.Placement(App.Vector(0, 0, -0.125 * 25.4), App.Rotation())
sketch3.addGeometry([
    Part.ArcOfCircle(Part.Circle(App.Vector(11.41986, 0.955962, 0), App.Vector(0, 0, 1), 79.671823), math.radians(-44.363208), math.radians(0.883043)),  # 0
    Part.ArcOfCircle(Part.Circle(App.Vector(77.102601, -11.388625, 0), App.Vector(0, 0, 1), 19.484377), math.radians(44.153315), math.radians(168.349748)),  # 1
    Part.ArcOfCircle(Part.Circle(App.Vector(91.41008, -8.652434, 0), App.Vector(0, 0, 1), 33.411948), math.radians(18.924541), math.radians(177.944464)),  # 2
    Part.ArcOfCircle(Part.Circle(App.Vector(29.471671, 11.773914, 0), App.Vector(0, 0, 1), 94.034626), math.radians(-130.119921), math.radians(-5.853473)),  # 3
    Part.ArcOfCircle(Part.Circle(App.Vector(-1.631998, 3.952254, 0), App.Vector(0, 0, 1), 70.546423), math.radians(-114.710936), math.radians(-57.393062)),  # 4
    Part.ArcOfCircle(Part.Circle(App.Vector(45.815791, -83.163871, 0), App.Vector(0, 0, 1), 29.251199), math.radians(79.269313), math.radians(108.811552)),  # 5
    Part.ArcOfCircle(Part.Circle(App.Vector(59.974361, -46.531078, 0), App.Vector(0, 0, 1), 11.756003), math.radians(-137.823983), math.radians(-44.363208)),  # 6
], False)
sketch3.addConstraint([
    Sketcher.Constraint("Coincident", 0, 2, 1, 1),
    Sketcher.Constraint("Coincident", 1, 2, 2, 2),
    Sketcher.Constraint("Coincident", 2, 1, 3, 2),
    Sketcher.Constraint("Coincident", 3, 1, 4, 1),
    Sketcher.Constraint("Coincident", 4, 2, 5, 2),
    Sketcher.Constraint("Coincident", 5, 1, 6, 1),
    Sketcher.Constraint("Coincident", 6, 2, 0, 1),
    Sketcher.Constraint("Radius", 5, Q("29.251199 mm")),
    Sketcher.Constraint("Radius", 2, Q("33.411948 mm")),
    Sketcher.Constraint("Radius", 0, Q("79.671823 mm")),
    Sketcher.Constraint("Radius", 1, Q("19.484377 mm")),
    Sketcher.Constraint("Radius", 3, Q("94.034626 mm")),
    Sketcher.Constraint("Radius", 4, Q("70.546423 mm")),
    Sketcher.Constraint("Radius", 6, Q("11.756003 mm")),
    Sketcher.Constraint("DistanceX", -1, 1, 1, 3, Q("77.102601 mm")),
    Sketcher.Constraint("DistanceX", 4, 3, -1, 1, Q("1.631998 mm")),
    Sketcher.Constraint("DistanceX", 0, 3, 6, 3, Q("48.554502 mm")),
    Sketcher.Constraint("DistanceX", -1, 1, 0, 3, Q("11.41986 mm")),
    Sketcher.Constraint("DistanceX", -1, 1, 2, 3, Q("91.41008 mm")),
    Sketcher.Constraint("DistanceX", -1, 1, 3, 3, Q("29.471671 mm")),
    Sketcher.Constraint("DistanceX", -1, 1, 5, 3, Q("45.815791 mm")),
    Sketcher.Constraint("DistanceY", 5, 3, -1, 1, Q("83.163871 mm")),
    Sketcher.Constraint("DistanceY", 6, 3, -1, 1, Q("46.531078 mm")),
    Sketcher.Constraint("DistanceX", -1, 1, 0, 2, Q("91.082221 mm")),
    Sketcher.Constraint("DistanceX", -1, 1, 1, 2, Q("58.019631 mm")),
    Sketcher.Constraint("DistanceX", 3, 1, -1, 1, Q("31.123259 mm")),
    Sketcher.Constraint("DistanceY", 3, 1, -1, 1, Q("60.13412 mm")),
    Sketcher.Constraint("DistanceY", 6, 2, 6, 3, Q("8.219849 mm")),
])
pocket2 = body.newObject("PartDesign::Pocket", "Pocket001")
pocket2.Profile = sketch3
pocket2.Type = "ThroughAll"
pocket2.Reversed = True

doc.recompute()
